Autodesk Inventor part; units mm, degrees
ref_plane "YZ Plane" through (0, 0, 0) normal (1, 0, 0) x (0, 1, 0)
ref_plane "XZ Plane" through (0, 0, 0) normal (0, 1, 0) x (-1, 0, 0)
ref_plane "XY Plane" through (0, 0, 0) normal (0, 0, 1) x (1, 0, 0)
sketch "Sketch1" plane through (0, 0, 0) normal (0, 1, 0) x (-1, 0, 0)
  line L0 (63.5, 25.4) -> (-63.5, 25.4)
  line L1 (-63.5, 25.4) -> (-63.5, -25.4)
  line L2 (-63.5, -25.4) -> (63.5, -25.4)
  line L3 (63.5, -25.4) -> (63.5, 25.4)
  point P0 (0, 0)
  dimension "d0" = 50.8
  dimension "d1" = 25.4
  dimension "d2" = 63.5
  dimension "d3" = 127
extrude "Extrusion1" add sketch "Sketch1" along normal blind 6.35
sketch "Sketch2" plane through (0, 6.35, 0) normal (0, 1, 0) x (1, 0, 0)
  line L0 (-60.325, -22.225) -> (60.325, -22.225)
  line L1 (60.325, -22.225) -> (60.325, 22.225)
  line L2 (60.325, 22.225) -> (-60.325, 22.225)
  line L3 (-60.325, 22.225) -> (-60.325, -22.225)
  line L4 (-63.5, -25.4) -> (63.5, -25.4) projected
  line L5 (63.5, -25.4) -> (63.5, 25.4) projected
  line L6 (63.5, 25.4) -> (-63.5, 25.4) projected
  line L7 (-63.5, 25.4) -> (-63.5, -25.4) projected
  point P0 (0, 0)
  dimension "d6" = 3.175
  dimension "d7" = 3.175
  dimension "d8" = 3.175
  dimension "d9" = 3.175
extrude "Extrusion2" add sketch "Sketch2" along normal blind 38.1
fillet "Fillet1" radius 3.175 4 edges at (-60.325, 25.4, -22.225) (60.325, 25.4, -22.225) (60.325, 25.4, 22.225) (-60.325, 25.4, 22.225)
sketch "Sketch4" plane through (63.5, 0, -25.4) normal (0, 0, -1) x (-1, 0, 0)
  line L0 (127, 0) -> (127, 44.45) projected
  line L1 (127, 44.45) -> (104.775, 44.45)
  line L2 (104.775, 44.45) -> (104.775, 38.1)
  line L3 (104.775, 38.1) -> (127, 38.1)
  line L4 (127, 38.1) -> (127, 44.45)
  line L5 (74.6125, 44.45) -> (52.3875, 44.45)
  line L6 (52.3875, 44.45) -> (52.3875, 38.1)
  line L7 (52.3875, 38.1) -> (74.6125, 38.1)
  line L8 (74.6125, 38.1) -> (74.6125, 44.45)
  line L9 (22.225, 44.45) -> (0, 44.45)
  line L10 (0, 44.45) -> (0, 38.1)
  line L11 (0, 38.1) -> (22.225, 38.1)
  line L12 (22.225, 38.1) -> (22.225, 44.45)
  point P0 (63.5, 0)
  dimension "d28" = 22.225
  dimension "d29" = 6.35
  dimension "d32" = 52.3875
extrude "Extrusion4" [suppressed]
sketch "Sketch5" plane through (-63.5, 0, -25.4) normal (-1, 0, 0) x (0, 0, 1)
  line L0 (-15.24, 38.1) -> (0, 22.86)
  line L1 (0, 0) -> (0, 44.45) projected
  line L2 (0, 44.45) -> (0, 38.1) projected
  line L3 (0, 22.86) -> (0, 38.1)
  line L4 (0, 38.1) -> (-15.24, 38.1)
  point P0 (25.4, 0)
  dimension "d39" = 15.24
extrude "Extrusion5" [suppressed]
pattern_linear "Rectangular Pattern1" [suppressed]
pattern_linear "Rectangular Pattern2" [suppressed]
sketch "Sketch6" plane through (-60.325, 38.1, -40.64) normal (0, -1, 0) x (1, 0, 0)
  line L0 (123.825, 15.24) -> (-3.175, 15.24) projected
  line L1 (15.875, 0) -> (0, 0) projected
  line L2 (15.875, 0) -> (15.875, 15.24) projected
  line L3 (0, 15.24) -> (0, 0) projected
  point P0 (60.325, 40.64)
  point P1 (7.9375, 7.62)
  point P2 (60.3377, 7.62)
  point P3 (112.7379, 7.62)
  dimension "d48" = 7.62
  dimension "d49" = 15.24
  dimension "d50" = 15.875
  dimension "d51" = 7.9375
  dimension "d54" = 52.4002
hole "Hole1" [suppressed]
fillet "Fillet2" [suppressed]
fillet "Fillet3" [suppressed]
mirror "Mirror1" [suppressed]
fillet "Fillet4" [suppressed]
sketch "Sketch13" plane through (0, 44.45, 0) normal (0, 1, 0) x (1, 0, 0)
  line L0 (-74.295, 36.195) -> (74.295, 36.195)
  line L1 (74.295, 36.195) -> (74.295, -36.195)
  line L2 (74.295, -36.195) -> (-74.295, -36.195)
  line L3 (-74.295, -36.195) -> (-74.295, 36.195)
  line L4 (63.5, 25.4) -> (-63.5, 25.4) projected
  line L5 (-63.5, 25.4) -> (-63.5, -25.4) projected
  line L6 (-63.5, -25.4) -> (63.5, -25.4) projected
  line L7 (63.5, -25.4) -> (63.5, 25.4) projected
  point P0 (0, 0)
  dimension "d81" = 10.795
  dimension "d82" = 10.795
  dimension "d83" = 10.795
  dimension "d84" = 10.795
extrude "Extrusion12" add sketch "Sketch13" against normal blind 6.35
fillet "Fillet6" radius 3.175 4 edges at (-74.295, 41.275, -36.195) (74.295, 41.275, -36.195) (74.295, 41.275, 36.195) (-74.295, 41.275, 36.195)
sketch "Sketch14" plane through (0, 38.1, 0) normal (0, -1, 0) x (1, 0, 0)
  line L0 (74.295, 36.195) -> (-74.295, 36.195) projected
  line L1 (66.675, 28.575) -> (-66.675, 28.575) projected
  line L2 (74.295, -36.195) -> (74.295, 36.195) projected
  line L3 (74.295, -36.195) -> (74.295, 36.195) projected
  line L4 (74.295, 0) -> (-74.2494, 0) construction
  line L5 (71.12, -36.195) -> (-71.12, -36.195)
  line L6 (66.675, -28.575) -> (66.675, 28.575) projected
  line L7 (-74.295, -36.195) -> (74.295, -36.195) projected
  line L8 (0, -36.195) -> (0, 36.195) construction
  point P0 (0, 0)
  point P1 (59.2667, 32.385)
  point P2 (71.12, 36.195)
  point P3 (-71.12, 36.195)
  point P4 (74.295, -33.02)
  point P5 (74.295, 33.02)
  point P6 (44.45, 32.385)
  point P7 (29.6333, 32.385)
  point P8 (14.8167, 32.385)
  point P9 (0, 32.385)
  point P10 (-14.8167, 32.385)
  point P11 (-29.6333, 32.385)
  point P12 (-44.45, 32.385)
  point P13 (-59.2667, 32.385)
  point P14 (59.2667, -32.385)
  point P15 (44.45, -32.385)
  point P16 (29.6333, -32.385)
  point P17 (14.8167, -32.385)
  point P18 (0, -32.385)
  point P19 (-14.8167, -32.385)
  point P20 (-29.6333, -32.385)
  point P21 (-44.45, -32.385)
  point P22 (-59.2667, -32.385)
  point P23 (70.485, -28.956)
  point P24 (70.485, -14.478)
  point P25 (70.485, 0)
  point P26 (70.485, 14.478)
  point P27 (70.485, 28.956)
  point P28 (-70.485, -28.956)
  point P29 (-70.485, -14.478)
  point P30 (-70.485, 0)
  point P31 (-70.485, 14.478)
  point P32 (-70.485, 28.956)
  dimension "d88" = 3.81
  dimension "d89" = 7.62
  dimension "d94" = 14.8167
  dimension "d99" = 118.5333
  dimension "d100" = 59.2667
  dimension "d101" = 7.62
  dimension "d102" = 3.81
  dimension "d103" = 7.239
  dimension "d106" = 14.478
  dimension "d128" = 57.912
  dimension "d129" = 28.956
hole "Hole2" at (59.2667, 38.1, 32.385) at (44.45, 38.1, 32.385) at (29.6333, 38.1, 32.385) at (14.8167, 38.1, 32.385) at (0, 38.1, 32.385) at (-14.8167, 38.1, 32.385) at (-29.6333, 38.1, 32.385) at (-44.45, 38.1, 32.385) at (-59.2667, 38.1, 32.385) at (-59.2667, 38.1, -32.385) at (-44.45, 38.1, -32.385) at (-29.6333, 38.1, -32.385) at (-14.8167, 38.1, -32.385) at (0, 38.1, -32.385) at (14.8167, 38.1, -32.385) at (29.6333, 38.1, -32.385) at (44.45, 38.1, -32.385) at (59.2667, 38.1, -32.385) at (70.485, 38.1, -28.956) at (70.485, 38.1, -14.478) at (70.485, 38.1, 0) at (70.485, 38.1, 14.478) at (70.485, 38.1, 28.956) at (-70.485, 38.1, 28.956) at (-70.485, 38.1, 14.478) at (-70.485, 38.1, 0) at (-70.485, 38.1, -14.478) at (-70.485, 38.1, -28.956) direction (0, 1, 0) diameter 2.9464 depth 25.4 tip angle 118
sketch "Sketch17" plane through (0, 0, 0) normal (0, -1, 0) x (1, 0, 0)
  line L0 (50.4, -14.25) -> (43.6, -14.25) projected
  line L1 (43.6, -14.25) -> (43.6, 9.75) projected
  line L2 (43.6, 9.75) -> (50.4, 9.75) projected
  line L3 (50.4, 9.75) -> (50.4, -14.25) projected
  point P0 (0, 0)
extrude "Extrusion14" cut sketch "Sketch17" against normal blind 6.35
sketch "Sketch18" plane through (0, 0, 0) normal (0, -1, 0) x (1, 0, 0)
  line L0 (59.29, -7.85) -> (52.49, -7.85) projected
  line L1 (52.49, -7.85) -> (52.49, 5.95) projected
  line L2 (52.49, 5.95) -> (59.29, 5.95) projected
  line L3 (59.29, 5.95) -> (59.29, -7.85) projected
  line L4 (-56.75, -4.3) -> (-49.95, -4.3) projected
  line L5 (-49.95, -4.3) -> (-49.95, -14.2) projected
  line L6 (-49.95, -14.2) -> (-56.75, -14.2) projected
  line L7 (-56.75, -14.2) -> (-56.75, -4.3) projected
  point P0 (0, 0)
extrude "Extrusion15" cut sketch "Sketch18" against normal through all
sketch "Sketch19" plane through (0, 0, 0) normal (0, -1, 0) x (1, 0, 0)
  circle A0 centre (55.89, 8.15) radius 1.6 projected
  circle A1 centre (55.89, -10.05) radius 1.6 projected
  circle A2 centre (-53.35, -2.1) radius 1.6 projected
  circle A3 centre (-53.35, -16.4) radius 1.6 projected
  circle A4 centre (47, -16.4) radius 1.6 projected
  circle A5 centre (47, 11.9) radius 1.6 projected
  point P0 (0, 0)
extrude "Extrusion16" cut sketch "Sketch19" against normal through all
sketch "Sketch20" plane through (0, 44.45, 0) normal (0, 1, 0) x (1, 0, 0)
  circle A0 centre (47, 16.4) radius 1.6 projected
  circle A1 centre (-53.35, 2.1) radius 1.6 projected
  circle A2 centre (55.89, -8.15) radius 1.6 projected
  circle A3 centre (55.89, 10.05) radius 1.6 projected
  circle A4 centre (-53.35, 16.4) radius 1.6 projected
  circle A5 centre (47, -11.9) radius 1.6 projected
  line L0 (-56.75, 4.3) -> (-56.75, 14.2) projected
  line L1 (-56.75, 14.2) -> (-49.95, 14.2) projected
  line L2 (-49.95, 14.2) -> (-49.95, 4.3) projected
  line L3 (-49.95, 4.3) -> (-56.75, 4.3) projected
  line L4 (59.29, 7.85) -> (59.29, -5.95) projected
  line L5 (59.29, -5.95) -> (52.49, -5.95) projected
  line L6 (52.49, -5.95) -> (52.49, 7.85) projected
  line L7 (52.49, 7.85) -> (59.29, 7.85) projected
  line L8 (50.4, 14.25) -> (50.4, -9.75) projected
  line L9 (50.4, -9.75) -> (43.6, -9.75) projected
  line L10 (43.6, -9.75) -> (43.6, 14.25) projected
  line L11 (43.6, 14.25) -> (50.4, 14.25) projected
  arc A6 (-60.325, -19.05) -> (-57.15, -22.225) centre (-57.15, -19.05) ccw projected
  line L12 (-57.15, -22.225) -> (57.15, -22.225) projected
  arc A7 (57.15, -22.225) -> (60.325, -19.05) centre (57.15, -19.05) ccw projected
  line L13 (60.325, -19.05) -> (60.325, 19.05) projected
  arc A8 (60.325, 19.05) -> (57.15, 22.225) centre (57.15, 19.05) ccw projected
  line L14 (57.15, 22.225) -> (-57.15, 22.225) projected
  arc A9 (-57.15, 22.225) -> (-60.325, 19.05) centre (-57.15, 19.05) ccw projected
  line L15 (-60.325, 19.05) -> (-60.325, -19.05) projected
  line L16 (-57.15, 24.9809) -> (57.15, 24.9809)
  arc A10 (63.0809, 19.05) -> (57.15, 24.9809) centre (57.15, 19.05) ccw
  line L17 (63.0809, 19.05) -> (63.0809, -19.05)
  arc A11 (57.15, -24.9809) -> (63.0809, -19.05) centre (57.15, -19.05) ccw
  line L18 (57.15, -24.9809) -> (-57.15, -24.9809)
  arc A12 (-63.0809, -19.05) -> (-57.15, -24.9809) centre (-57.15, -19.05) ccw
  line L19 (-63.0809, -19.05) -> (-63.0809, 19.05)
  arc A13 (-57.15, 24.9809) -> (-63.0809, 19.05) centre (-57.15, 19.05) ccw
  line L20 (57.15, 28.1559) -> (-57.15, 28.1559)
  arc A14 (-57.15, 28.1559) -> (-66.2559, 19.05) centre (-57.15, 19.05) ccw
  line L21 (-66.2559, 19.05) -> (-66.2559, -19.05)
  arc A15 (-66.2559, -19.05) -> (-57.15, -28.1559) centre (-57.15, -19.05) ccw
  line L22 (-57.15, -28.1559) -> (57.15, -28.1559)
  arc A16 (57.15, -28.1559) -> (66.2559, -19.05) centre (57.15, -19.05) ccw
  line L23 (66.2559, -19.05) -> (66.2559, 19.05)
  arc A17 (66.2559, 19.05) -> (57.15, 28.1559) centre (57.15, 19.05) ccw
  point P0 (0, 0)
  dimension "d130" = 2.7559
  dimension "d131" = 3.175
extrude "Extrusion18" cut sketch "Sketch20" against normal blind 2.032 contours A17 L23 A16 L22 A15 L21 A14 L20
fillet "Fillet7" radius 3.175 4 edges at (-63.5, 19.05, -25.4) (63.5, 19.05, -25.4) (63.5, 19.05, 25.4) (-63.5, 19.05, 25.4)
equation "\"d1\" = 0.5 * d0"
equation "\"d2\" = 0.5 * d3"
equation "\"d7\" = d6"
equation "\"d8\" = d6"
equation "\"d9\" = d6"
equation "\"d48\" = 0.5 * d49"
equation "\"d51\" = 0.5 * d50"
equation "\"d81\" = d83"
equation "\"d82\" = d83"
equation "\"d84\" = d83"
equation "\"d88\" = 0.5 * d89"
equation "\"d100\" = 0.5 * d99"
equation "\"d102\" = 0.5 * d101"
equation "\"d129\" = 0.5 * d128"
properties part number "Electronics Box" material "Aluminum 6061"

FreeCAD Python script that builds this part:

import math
import FreeCAD as App
import Part
import Sketcher

V = App.Vector
Q = App.Units.Quantity


def edges_at(feature, points):
    """Names of the edges that pass closest to the given points."""
    edges = feature.Shape.Edges
    near = lambda p: min(range(len(edges)), key=lambda i: edges[i].distToShape(Part.Vertex(*p))[0])
    return sorted({f"Edge{near(p) + 1}" for p in points})

doc = App.newDocument("Part")
body = doc.addObject("PartDesign::Body", "Body")

# Sketch on XZ plane
sketch1 = body.newObject("Sketcher::SketchObject", "Sketch")
sketch1.AttachmentSupport = (doc.getObject("XZ_Plane"), [""])
sketch1.MapMode = "FlatFace"
sketch1.addGeometry([
    Part.LineSegment(V(-64, -25, 0), V(-64, 25, 0)),
    Part.LineSegment(V(-64, 25, 0), V(64, 25, 0)),
    Part.LineSegment(V(64, 25, 0), V(64, -25, 0)),
    Part.LineSegment(V(64, -25, 0), V(-64, -25, 0)),
], False)
sketch1.addConstraint([
    Sketcher.Constraint("Coincident", 0, 2, 1, 1),
    Sketcher.Constraint("Coincident", 1, 2, 2, 1),
    Sketcher.Constraint("Coincident", 2, 2, 3, 1),
    Sketcher.Constraint("Coincident", 3, 2, 0, 1),
    Sketcher.Constraint("Vertical", 0),
    Sketcher.Constraint("Horizontal", 1),
    Sketcher.Constraint("Vertical", 2),
    Sketcher.Constraint("Horizontal", 3),
    Sketcher.Constraint("Symmetric", 0, 2, 2, 2, -1, 1),
    Sketcher.Constraint("DistanceX", 1, 1, 1, 2, Q("5 in")),
    Sketcher.Constraint("DistanceY", 0, 1, 0, 2, Q("2 in")),
])
pad1 = body.newObject("PartDesign::Pad", "Pad")
pad1.Profile = sketch1
pad1.Length = Q("0.25 in")
pad1.Reversed = True

# Sketch on XZ plane
sketch2 = body.newObject("Sketcher::SketchObject", "Sketch001")
sketch2.AttachmentSupport = (doc.getObject("XZ_Plane"), [""])
sketch2.MapMode = "FlatFace"
sketch2.AttachmentOffset = App.Placement(V(0, 0, -0.25 * 25.4), App.Rotation())
sketch2.addGeometry([
    Part.LineSegment(V(-64, -25, 0), V(-64, 25, 0)),  # 0
    Part.LineSegment(V(-64, 25, 0), V(64, 25, 0)),  # 1
    Part.LineSegment(V(64, 25, 0), V(64, -25, 0)),  # 2
    Part.LineSegment(V(64, -25, 0), V(-64, -25, 0)),  # 3
    Part.LineSegment(V(60, 22, 0), V(-60, 22, 0)),  # 4
    Part.LineSegment(V(-60, 22, 0), V(-60, -22, 0)),  # 5
    Part.LineSegment(V(-60, -22, 0), V(60, -22, 0)),  # 6
    Part.LineSegment(V(60, -22, 0), V(60, 22, 0)),  # 7
], False)
sketch2.addConstraint([
    Sketcher.Constraint("Coincident", 0, 2, 1, 1),
    Sketcher.Constraint("Coincident", 1, 2, 2, 1),
    Sketcher.Constraint("Coincident", 2, 2, 3, 1),
    Sketcher.Constraint("Coincident", 3, 2, 0, 1),
    Sketcher.Constraint("Coincident", 4, 2, 5, 1),
    Sketcher.Constraint("Coincident", 5, 2, 6, 1),
    Sketcher.Constraint("Coincident", 6, 2, 7, 1),
    Sketcher.Constraint("Coincident", 7, 2, 4, 1),
    Sketcher.Constraint("Vertical", 0),
    Sketcher.Constraint("Horizontal", 1),
    Sketcher.Constraint("Vertical", 2),
    Sketcher.Constraint("Horizontal", 3),
    Sketcher.Constraint("Horizontal", 4),
    Sketcher.Constraint("Vertical", 5),
    Sketcher.Constraint("Horizontal", 6),
    Sketcher.Constraint("Vertical", 7),
    Sketcher.Constraint("Symmetric", 0, 2, 2, 2, -1, 1),
    Sketcher.Constraint("Symmetric", 4, 2, 6, 2, -1, 1),
    Sketcher.Constraint("DistanceX", 1, 1, 1, 2, Q("5 in")),
    Sketcher.Constraint("DistanceY", 0, 1, 0, 2, Q("2 in")),
    Sketcher.Constraint("DistanceX", 0, 2, 4, 2, Q("0.125 in")),
    Sketcher.Constraint("DistanceY", 4, 2, 0, 2, Q("0.125 in")),
])
pad2 = body.newObject("PartDesign::Pad", "Pad001")
pad2.Profile = sketch2
pad2.Length = Q("1.5 in")
pad2.Reversed = True
doc.recompute()

fillet = body.newObject("PartDesign::Fillet", "Fillet")
fillet.Base = (pad2, edges_at(pad2, [
    (-60.325, 25.4, -22.225),
    (60.325, 25.4, -22.225),
    (60.325, 25.4, 22.225),
    (-60.325, 25.4, 22.225),
]))
fillet.Radius = Q("0.125 in")

# Sketch on XZ plane
sketch3 = body.newObject("Sketcher::SketchObject", "Sketch002")
sketch3.AttachmentSupport = (doc.getObject("XZ_Plane"), [""])
sketch3.MapMode = "FlatFace"
sketch3.AttachmentOffset = App.Placement(V(0, 0, -1.75 * 25.4), App.Rotation())
sketch3.addGeometry([
    Part.LineSegment(V(74, -36, 0), V(-74, -36, 0)),  # 0
    Part.LineSegment(V(-74, -36, 0), V(-74, 36, 0)),  # 1
    Part.LineSegment(V(-74, 36, 0), V(74, 36, 0)),  # 2
    Part.LineSegment(V(74, 36, 0), V(74, -36, 0)),  # 3
    Part.LineSegment(V(-64, -25, 0), V(64, -25, 0)),  # 4
    Part.LineSegment(V(64, -25, 0), V(64, 25, 0)),  # 5
    Part.LineSegment(V(64, 25, 0), V(-64, 25, 0)),  # 6
    Part.LineSegment(V(-64, 25, 0), V(-64, -25, 0)),  # 7
], False)
sketch3.addConstraint([
    Sketcher.Constraint("Coincident", 0, 2, 1, 1),
    Sketcher.Constraint("Coincident", 1, 2, 2, 1),
    Sketcher.Constraint("Coincident", 2, 2, 3, 1),
    Sketcher.Constraint("Coincident", 3, 2, 0, 1),
    Sketcher.Constraint("Coincident", 4, 2, 5, 1),
    Sketcher.Constraint("Coincident", 5, 2, 6, 1),
    Sketcher.Constraint("Coincident", 6, 2, 7, 1),
    Sketcher.Constraint("Coincident", 7, 2, 4, 1),
    Sketcher.Constraint("Horizontal", 0),
    Sketcher.Constraint("Vertical", 1),
    Sketcher.Constraint("Horizontal", 2),
    Sketcher.Constraint("Vertical", 3),
    Sketcher.Constraint("Horizontal", 4),
    Sketcher.Constraint("Vertical", 5),
    Sketcher.Constraint("Horizontal", 6),
    Sketcher.Constraint("Vertical", 7),
    Sketcher.Constraint("Symmetric", 0, 2, 2, 2, -1, 1),
    Sketcher.Constraint("Symmetric", 4, 2, 6, 2, -1, 1),
    Sketcher.Constraint("DistanceX", 4, 1, 4, 2, Q("5 in")),
    Sketcher.Constraint("DistanceY", 5, 1, 5, 2, Q("2 in")),
    Sketcher.Constraint("DistanceX", 4, 2, 3, 2, Q("0.425 in")),
    Sketcher.Constraint("DistanceY", 3, 2, 4, 2, Q("0.425 in")),
])
pad3 = body.newObject("PartDesign::Pad", "Pad002")
pad3.Profile = sketch3
pad3.Length = Q("0.25 in")
doc.recompute()

fillet2 = body.newObject("PartDesign::Fillet", "Fillet001")
fillet2.Base = (pad3, edges_at(pad3, [
    (-74.295, 41.275, -36.195),
    (74.295, 41.275, -36.195),
    (74.295, 41.275, 36.195),
    (-74.295, 41.275, 36.195),
]))
fillet2.Radius = Q("0.125 in")

# Sketch on XZ plane
sketch4 = body.newObject("Sketcher::SketchObject", "Sketch003")
sketch4.AttachmentSupport = (doc.getObject("XZ_Plane"), [""])
sketch4.MapMode = "FlatFace"
sketch4.AttachmentOffset = App.Placement(V(0, 0, -1.5 * 25.4), App.Rotation())
sketch4.addGeometry([
    Part.Circle(V(59.3, 32.4, 0), V(0, 0, 1), 1.5),  # 0
    Part.Circle(V(44.5, 32.4, 0), V(0, 0, 1), 1.5),  # 1
    Part.Circle(V(29.6, 32.4, 0), V(0, 0, 1), 1.5),  # 2
    Part.Circle(V(14.8, 32.4, 0), V(0, 0, 1), 1.5),  # 3
    Part.Circle(V(0, 32.4, 0), V(0, 0, 1), 1.5),  # 4
    Part.Circle(V(-14.8, 32.4, 0), V(0, 0, 1), 1.5),  # 5
    Part.Circle(V(-29.6, 32.4, 0), V(0, 0, 1), 1.5),  # 6
    Part.Circle(V(-44.5, 32.4, 0), V(0, 0, 1), 1.5),  # 7
    Part.Circle(V(-59.3, 32.4, 0), V(0, 0, 1), 1.5),  # 8
    Part.Circle(V(-59.3, -32.4, 0), V(0, 0, 1), 1.5),  # 9
    Part.Circle(V(-44.5, -32.4, 0), V(0, 0, 1), 1.5),  # 10
    Part.Circle(V(-29.6, -32.4, 0), V(0, 0, 1), 1.5),  # 11
    Part.Circle(V(-14.8, -32.4, 0), V(0, 0, 1), 1.5),  # 12
    Part.Circle(V(0, -32.4, 0), V(0, 0, 1), 1.5),  # 13
    Part.Circle(V(14.8, -32.4, 0), V(0, 0, 1), 1.5),  # 14
    Part.Circle(V(29.6, -32.4, 0), V(0, 0, 1), 1.5),  # 15
    Part.Circle(V(44.5, -32.4, 0), V(0, 0, 1), 1.5),  # 16
    Part.Circle(V(59.3, -32.4, 0), V(0, 0, 1), 1.5),  # 17
    Part.Circle(V(70.5, -29, 0), V(0, 0, 1), 1.5),  # 18
    Part.Circle(V(70.5, -14.5, 0), V(0, 0, 1), 1.5),  # 19
    Part.Circle(V(70.5, 0, 0), V(0, 0, 1), 1.5),  # 20
    Part.Circle(V(70.5, 14.5, 0), V(0, 0, 1), 1.5),  # 21
    Part.Circle(V(70.5, 29, 0), V(0, 0, 1), 1.5),  # 22
    Part.Circle(V(-70.5, 29, 0), V(0, 0, 1), 1.5),  # 23
    Part.Circle(V(-70.5, 14.5, 0), V(0, 0, 1), 1.5),  # 24
    Part.Circle(V(-70.5, 0, 0), V(0, 0, 1), 1.5),  # 25
    Part.Circle(V(-70.5, -14.5, 0), V(0, 0, 1), 1.5),  # 26
    Part.Circle(V(-70.5, -29, 0), V(0, 0, 1), 1.5),  # 27
], False)
sketch4.addConstraint([
    Sketcher.Constraint("Equal", 0, 1),
    Sketcher.Constraint("Equal", 1, 2),
    Sketcher.Constraint("Equal", 2, 3),
    Sketcher.Constraint("Equal", 3, 4),
    Sketcher.Constraint("Equal", 4, 5),
    Sketcher.Constraint("Equal", 5, 6),
    Sketcher.Constraint("Equal", 6, 7),
    Sketcher.Constraint("Equal", 7, 8),
    Sketcher.Constraint("Equal", 8, 9),
    Sketcher.Constraint("Equal", 9, 10),
    Sketcher.Constraint("Equal", 10, 11),
    Sketcher.Constraint("Equal", 11, 12),
    Sketcher.Constraint("Equal", 12, 13),
    Sketcher.Constraint("Equal", 13, 14),
    Sketcher.Constraint("Equal", 14, 15),
    Sketcher.Constraint("Equal", 15, 16),
    Sketcher.Constraint("Equal", 16, 17),
    Sketcher.Constraint("Equal", 17, 18),
    Sketcher.Constraint("Equal", 18, 19),
    Sketcher.Constraint("Equal", 19, 20),
    Sketcher.Constraint("Equal", 20, 21),
    Sketcher.Constraint("Equal", 21, 22),
    Sketcher.Constraint("Equal", 22, 23),
    Sketcher.Constraint("Equal", 23, 24),
    Sketcher.Constraint("Equal", 24, 25),
    Sketcher.Constraint("Equal", 25, 26),
    Sketcher.Constraint("Equal", 26, 27),
    Sketcher.Constraint("Symmetric", 0, 3, 9, 3, -1, 1),
    Sketcher.Constraint("Symmetric", 1, 3, 10, 3, -1, 1),
    Sketcher.Constraint("Symmetric", 2, 3, 11, 3, -1, 1),
    Sketcher.Constraint("Symmetric", 3, 3, 12, 3, -1, 1),
    Sketcher.Constraint("Symmetric", 4, 3, 13, 3, -1, 1),
    Sketcher.Constraint("Symmetric", 5, 3, 14, 3, -1, 1),
    Sketcher.Constraint("Symmetric", 6, 3, 15, 3, -1, 1),
    Sketcher.Constraint("Symmetric", 7, 3, 16, 3, -1, 1),
    Sketcher.Constraint("Symmetric", 8, 3, 17, 3, -1, 1),
    Sketcher.Constraint("Symmetric", 18, 3, 23, 3, -1, 1),
    Sketcher.Constraint("Symmetric", 19, 3, 24, 3, -1, 1),
    Sketcher.Constraint("Symmetric", 20, 3, 25, 3, -1, 1),
    Sketcher.Constraint("Symmetric", 21, 3, 26, 3, -1, 1),
    Sketcher.Constraint("Symmetric", 22, 3, 27, 3, -1, 1),
    Sketcher.Constraint("Symmetric", 3, 3, 5, 3, -2),
    Sketcher.Constraint("Symmetric", 2, 3, 6, 3, -2),
    Sketcher.Constraint("Symmetric", 1, 3, 7, 3, -2),
    Sketcher.Constraint("Symmetric", 0, 3, 8, 3, -2),
    Sketcher.Constraint("Symmetric", 22, 3, 23, 3, -2),
    Sketcher.Constraint("Symmetric", 21, 3, 24, 3, -2),
    Sketcher.Constraint("PointOnObject", 4, 3, -2),
    Sketcher.Constraint("PointOnObject", 20, 3, -1),
    Sketcher.Constraint("Horizontal", 0, 3, 1, 3),
    Sketcher.Constraint("Horizontal", 1, 3, 2, 3),
    Sketcher.Constraint("Horizontal", 2, 3, 3, 3),
    Sketcher.Constraint("Horizontal", 3, 3, 4, 3),
    Sketcher.Constraint("Vertical", 18, 3, 19, 3),
    Sketcher.Constraint("Vertical", 19, 3, 20, 3),
    Sketcher.Constraint("Diameter", 0, Q("0.116 in")),
    Sketcher.Constraint("DistanceX", -1, 1, 1, 3, Q("1.75 in")),
    Sketcher.Constraint("DistanceY", 18, 3, -1, 1, Q("1.14 in")),
    Sketcher.Constraint("DistanceY", 19, 3, -1, 1, Q("0.57 in")),
    Sketcher.Constraint("DistanceX", 3, 3, 0, 3, Q("1.75 in")),
    Sketcher.Constraint("DistanceX", 5, 3, 2, 3, Q("1.75 in")),
    Sketcher.Constraint("DistanceY", 9, 3, 8, 3, Q("2.55 in")),
    Sketcher.Constraint("DistanceX", -1, 1, 18, 3, Q("2.775 in")),
    Sketcher.Constraint("DistanceX", -1, 1, 0, 3, Q("59.2667 mm")),
])
doc.recompute()
hole = body.newObject("PartDesign::Hole", "Hole")
hole.Profile = sketch4
hole.ThreadType = "None"
hole.Diameter = Q("0.116 in")
hole.DepthType = "Dimension"
hole.Depth = Q("1 in")
hole.DrillPoint = "Angled"
hole.DrillPointAngle = 118

# Sketch on XZ plane
sketch5 = body.newObject("Sketcher::SketchObject", "Sketch004")
sketch5.AttachmentSupport = (doc.getObject("XZ_Plane"), [""])
sketch5.MapMode = "FlatFace"
sketch5.addGeometry([
    Part.LineSegment(V(44, -14, 0), V(50, -14, 0)),
    Part.LineSegment(V(50, -14, 0), V(50, 10, 0)),
    Part.LineSegment(V(50, 10, 0), V(44, 10, 0)),
    Part.LineSegment(V(44, 10, 0), V(44, -14, 0)),
], False)
sketch5.addConstraint([
    Sketcher.Constraint("Coincident", 0, 2, 1, 1),
    Sketcher.Constraint("Coincident", 1, 2, 2, 1),
    Sketcher.Constraint("Coincident", 2, 2, 3, 1),
    Sketcher.Constraint("Coincident", 3, 2, 0, 1),
    Sketcher.Constraint("Horizontal", 0),
    Sketcher.Constraint("Vertical", 1),
    Sketcher.Constraint("Horizontal", 2),
    Sketcher.Constraint("Vertical", 3),
    Sketcher.Constraint("DistanceX", 0, 1, 0, 2, Q("6.8 mm")),
    Sketcher.Constraint("DistanceY", 1, 1, 1, 2, Q("24 mm")),
    Sketcher.Constraint("DistanceX", -1, 1, 0, 2, Q("50.4 mm")),
    Sketcher.Constraint("DistanceY", 0, 2, -1, 1, Q("14.25 mm")),
])
pocket1 = body.newObject("PartDesign::Pocket", "Pocket")
pocket1.Profile = sketch5
pocket1.Length = Q("0.25 in")

# Sketch on XZ plane
sketch6 = body.newObject("Sketcher::SketchObject", "Sketch005")
sketch6.AttachmentSupport = (doc.getObject("XZ_Plane"), [""])
sketch6.MapMode = "FlatFace"
sketch6.addGeometry([
    Part.LineSegment(V(52, -8, 0), V(59, -8, 0)),  # 0
    Part.LineSegment(V(59, -8, 0), V(59, 6, 0)),  # 1
    Part.LineSegment(V(59, 6, 0), V(52, 6, 0)),  # 2
    Part.LineSegment(V(52, 6, 0), V(52, -8, 0)),  # 3
    Part.LineSegment(V(-50, -4, 0), V(-57, -4, 0)),  # 4
    Part.LineSegment(V(-57, -4, 0), V(-57, -14, 0)),  # 5
    Part.LineSegment(V(-57, -14, 0), V(-50, -14, 0)),  # 6
    Part.LineSegment(V(-50, -14, 0), V(-50, -4, 0)),  # 7
], False)
sketch6.addConstraint([
    Sketcher.Constraint("Coincident", 0, 2, 1, 1),
    Sketcher.Constraint("Coincident", 1, 2, 2, 1),
    Sketcher.Constraint("Coincident", 2, 2, 3, 1),
    Sketcher.Constraint("Coincident", 3, 2, 0, 1),
    Sketcher.Constraint("Coincident", 4, 2, 5, 1),
    Sketcher.Constraint("Coincident", 5, 2, 6, 1),
    Sketcher.Constraint("Coincident", 6, 2, 7, 1),
    Sketcher.Constraint("Coincident", 7, 2, 4, 1),
    Sketcher.Constraint("Horizontal", 0),
    Sketcher.Constraint("Vertical", 1),
    Sketcher.Constraint("Horizontal", 2),
    Sketcher.Constraint("Vertical", 3),
    Sketcher.Constraint("Horizontal", 4),
    Sketcher.Constraint("Vertical", 5),
    Sketcher.Constraint("Horizontal", 6),
    Sketcher.Constraint("Vertical", 7),
    Sketcher.Constraint("Equal", 2, 4),
    Sketcher.Constraint("DistanceY", 5, 2, 3, 2, Q("0.25 in")),
    Sketcher.Constraint("DistanceY", 1, 1, 1, 2, Q("0.5433 in")),
    Sketcher.Constraint("DistanceX", 0, 1, 0, 2, Q("6.8 mm")),
    Sketcher.Constraint("DistanceY", 5, 2, 5, 1, Q("9.9 mm")),
    Sketcher.Constraint("DistanceY", 4, 2, -1, 1, Q("0.1693 in")),
    Sketcher.Constraint("DistanceX", 4, 2, 0, 2, Q("4.5685 in")),
    Sketcher.Constraint("DistanceX", -1, 1, 0, 2, Q("59.29 mm")),
])
pocket2 = body.newObject("PartDesign::Pocket", "Pocket001")
pocket2.Profile = sketch6
pocket2.Type = "ThroughAll"

# Sketch on XZ plane
sketch7 = body.newObject("Sketcher::SketchObject", "Sketch006")
sketch7.AttachmentSupport = (doc.getObject("XZ_Plane"), [""])
sketch7.MapMode = "FlatFace"
sketch7.addGeometry([
    Part.Circle(V(55.9, 8.2, 0), V(0, 0, 1), 1.6),  # 0
    Part.Circle(V(55.9, -10.1, 0), V(0, 0, 1), 1.6),  # 1
    Part.Circle(V(-53.4, -2.1, 0), V(0, 0, 1), 1.6),  # 2
    Part.Circle(V(-53.4, -16.4, 0), V(0, 0, 1), 1.6),  # 3
    Part.Circle(V(47, -16.4, 0), V(0, 0, 1), 1.6),  # 4
    Part.Circle(V(47, 11.9, 0), V(0, 0, 1), 1.6),  # 5
], False)
sketch7.addConstraint([
    Sketcher.Constraint("Equal", 0, 1),
    Sketcher.Constraint("Equal", 1, 2),
    Sketcher.Constraint("Equal", 2, 3),
    Sketcher.Constraint("Equal", 3, 4),
    Sketcher.Constraint("Equal", 4, 5),
    Sketcher.Constraint("Horizontal", 3, 3, 4, 3),
    Sketcher.Constraint("Vertical", 0, 3, 1, 3),
    Sketcher.Constraint("Vertical", 2, 3, 3, 3),
    Sketcher.Constraint("Vertical", 4, 3, 5, 3),
    Sketcher.Constraint("Diameter", 0, Q("3.2 mm")),
    Sketcher.Constraint("DistanceY", 3, 3, 1, 3, Q("0.25 in")),
    Sketcher.Constraint("DistanceX", 4, 3, 1, 3, Q("0.35 in")),
    Sketcher.Constraint("DistanceY", 1, 3, 2, 3, Q("0.313 in")),
    Sketcher.Constraint("DistanceX", -1, 1, 0, 3, Q("2.2004 in")),
    Sketcher.Constraint("DistanceX", 2, 3, -1, 1, Q("2.1004 in")),
    Sketcher.Constraint("DistanceY", -1, 1, 5, 3, Q("0.4685 in")),
    Sketcher.Constraint("DistanceY", -1, 1, 0, 3, Q("8.15 mm")),
    Sketcher.Constraint("DistanceY", 1, 3, -1, 1, Q("10.05 mm")),
])
pocket3 = body.newObject("PartDesign::Pocket", "Pocket002")
pocket3.Profile = sketch7
pocket3.Type = "ThroughAll"

# Sketch on XZ plane
sketch8 = body.newObject("Sketcher::SketchObject", "Sketch007")
sketch8.AttachmentSupport = (doc.getObject("XZ_Plane"), [""])
sketch8.MapMode = "FlatFace"
sketch8.AttachmentOffset = App.Placement(V(0, 0, -1.75 * 25.4), App.Rotation())
sketch8.addGeometry([
    Part.ArcOfCircle(Part.Circle(V(57, -19, 0), V(0, 0, 1), 9), math.radians(-90), math.radians(0)),  # 0
    Part.LineSegment(V(57, -28, 0), V(-57, -28, 0)),  # 1
    Part.ArcOfCircle(Part.Circle(V(-57, -19, 0), V(0, 0, 1), 9), math.radians(180), math.radians(270)),  # 2
    Part.LineSegment(V(-66, -19, 0), V(-66, 19, 0)),  # 3
    Part.ArcOfCircle(Part.Circle(V(-57, 19, 0), V(0, 0, 1), 9), math.radians(90), math.radians(180)),  # 4
    Part.LineSegment(V(-57, 28, 0), V(57, 28, 0)),  # 5
    Part.ArcOfCircle(Part.Circle(V(57, 19, 0), V(0, 0, 1), 9), math.radians(0), math.radians(90)),  # 6
    Part.LineSegment(V(66, 19, 0), V(66, -19, 0)),  # 7
    Part.ArcOfCircle(Part.Circle(V(-57, -19, 0), V(0, 0, 1), 6), math.radians(180), math.radians(270)),  # 8
    Part.LineSegment(V(-57, -25, 0), V(57, -25, 0)),  # 9
    Part.ArcOfCircle(Part.Circle(V(57, -19, 0), V(0, 0, 1), 6), math.radians(-90), math.radians(0)),  # 10
    Part.LineSegment(V(63, -19, 0), V(63, 19, 0)),  # 11
    Part.ArcOfCircle(Part.Circle(V(57, 19, 0), V(0, 0, 1), 6), math.radians(0), math.radians(90)),  # 12
    Part.LineSegment(V(57, 25, 0), V(-57, 25, 0)),  # 13
    Part.ArcOfCircle(Part.Circle(V(-57, 19, 0), V(0, 0, 1), 6), math.radians(90), math.radians(180)),  # 14
    Part.LineSegment(V(-63, 19, 0), V(-63, -19, 0)),  # 15
], False)
sketch8.addConstraint([
    Sketcher.Constraint("Tangent", 0, 1, 1, 1),
    Sketcher.Constraint("Tangent", 1, 2, 2, 2),
    Sketcher.Constraint("Tangent", 2, 1, 3, 1),
    Sketcher.Constraint("Tangent", 3, 2, 4, 2),
    Sketcher.Constraint("Tangent", 4, 1, 5, 1),
    Sketcher.Constraint("Tangent", 5, 2, 6, 2),
    Sketcher.Constraint("Tangent", 6, 1, 7, 1),
    Sketcher.Constraint("Tangent", 7, 2, 0, 2),
    Sketcher.Constraint("Tangent", 8, 2, 9, 1),
    Sketcher.Constraint("Tangent", 9, 2, 10, 1),
    Sketcher.Constraint("Tangent", 10, 2, 11, 1),
    Sketcher.Constraint("Tangent", 11, 2, 12, 1),
    Sketcher.Constraint("Tangent", 12, 2, 13, 1),
    Sketcher.Constraint("Tangent", 13, 2, 14, 1),
    Sketcher.Constraint("Tangent", 14, 2, 15, 1),
    Sketcher.Constraint("Tangent", 15, 2, 8, 1),
    Sketcher.Constraint("Horizontal", 1),
    Sketcher.Constraint("Vertical", 3),
    Sketcher.Constraint("Horizontal", 5),
    Sketcher.Constraint("Vertical", 7),
    Sketcher.Constraint("Horizontal", 9),
    Sketcher.Constraint("Vertical", 11),
    Sketcher.Constraint("Horizontal", 13),
    Sketcher.Constraint("Vertical", 15),
    Sketcher.Constraint("Coincident", 8, 3, 2, 3),
    Sketcher.Constraint("Coincident", 10, 3, 0, 3),
    Sketcher.Constraint("Coincident", 12, 3, 6, 3),
    Sketcher.Constraint("Equal", 0, 2),
    Sketcher.Constraint("Equal", 2, 4),
    Sketcher.Constraint("Equal", 4, 6),
    Sketcher.Constraint("Equal", 12, 14),
    Sketcher.Constraint("Symmetric", 0, 3, 4, 3, -1, 1),
    Sketcher.Constraint("DistanceX", 1, 2, 1, 1, Q("4.5 in")),
    Sketcher.Constraint("DistanceY", 3, 1, 3, 2, Q("1.5 in")),
    Sketcher.Constraint("DistanceY", 1, 2, 8, 2, Q("0.125 in")),
    Sketcher.Constraint("Radius", 0, Q("0.3585 in")),
])
pocket4 = body.newObject("PartDesign::Pocket", "Pocket003")
pocket4.Profile = sketch8
pocket4.Length = Q("0.08 in")
pocket4.Reversed = True
doc.recompute()

fillet3 = body.newObject("PartDesign::Fillet", "Fillet002")
fillet3.Base = (pocket4, edges_at(pocket4, [
    (-63.5, 19.05, -25.4),
    (63.5, 19.05, -25.4),
    (63.5, 19.05, 25.4),
    (-63.5, 19.05, 25.4),
]))
fillet3.Radius = Q("0.125 in")

doc.recompute()
